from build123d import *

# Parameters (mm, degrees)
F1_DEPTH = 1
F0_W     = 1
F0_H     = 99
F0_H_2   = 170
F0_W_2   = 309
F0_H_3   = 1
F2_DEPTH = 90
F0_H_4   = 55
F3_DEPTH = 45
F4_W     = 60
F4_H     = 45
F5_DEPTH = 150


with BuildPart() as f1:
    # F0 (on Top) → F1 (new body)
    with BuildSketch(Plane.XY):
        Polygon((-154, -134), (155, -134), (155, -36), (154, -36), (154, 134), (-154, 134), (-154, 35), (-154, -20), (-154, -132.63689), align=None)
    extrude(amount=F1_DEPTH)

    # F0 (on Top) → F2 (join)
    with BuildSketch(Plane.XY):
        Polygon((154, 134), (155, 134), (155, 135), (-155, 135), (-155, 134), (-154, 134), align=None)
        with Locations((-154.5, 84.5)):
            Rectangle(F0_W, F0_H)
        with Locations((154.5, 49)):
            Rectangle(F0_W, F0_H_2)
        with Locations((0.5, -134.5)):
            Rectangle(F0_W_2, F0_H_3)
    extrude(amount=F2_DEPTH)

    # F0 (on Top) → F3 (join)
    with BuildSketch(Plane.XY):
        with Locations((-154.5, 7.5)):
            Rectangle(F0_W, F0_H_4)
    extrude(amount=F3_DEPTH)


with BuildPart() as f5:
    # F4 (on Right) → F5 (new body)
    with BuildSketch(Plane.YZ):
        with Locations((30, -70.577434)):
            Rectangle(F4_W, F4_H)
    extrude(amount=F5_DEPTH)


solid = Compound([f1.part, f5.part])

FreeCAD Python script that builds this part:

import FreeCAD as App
import Part
import Sketcher

V = App.Vector

doc = App.newDocument("Part")
body = doc.addObject("PartDesign::Body", "Body")

# Sketch on XY plane
sketch1 = body.newObject("Sketcher::SketchObject", "Sketch")
sketch1.AttachmentSupport = (doc.getObject("XY_Plane"), [""])
sketch1.MapMode = "FlatFace"
sketch1.addGeometry([
    Part.LineSegment(V(-154, -134, 0), V(155, -134, 0)),  # 0
    Part.LineSegment(V(155, -134, 0), V(155, -36, 0)),  # 1
    Part.LineSegment(V(155, -36, 0), V(154, -36, 0)),  # 2
    Part.LineSegment(V(154, -36, 0), V(154, 134, 0)),  # 3
    Part.LineSegment(V(154, 134, 0), V(-154, 134, 0)),  # 4
    Part.LineSegment(V(-154, 134, 0), V(-154, -134, 0)),  # 5
], False)
sketch1.addConstraint([
    Sketcher.Constraint("Coincident", 0, 2, 1, 1),
    Sketcher.Constraint("Coincident", 1, 2, 2, 1),
    Sketcher.Constraint("Coincident", 2, 2, 3, 1),
    Sketcher.Constraint("Coincident", 3, 2, 4, 1),
    Sketcher.Constraint("Coincident", 4, 2, 5, 1),
    Sketcher.Constraint("Coincident", 5, 2, 0, 1),
    Sketcher.Constraint("Horizontal", 0),
    Sketcher.Constraint("Vertical", 1),
    Sketcher.Constraint("Horizontal", 2),
    Sketcher.Constraint("Vertical", 3),
    Sketcher.Constraint("Horizontal", 4),
    Sketcher.Constraint("Vertical", 5),
    Sketcher.Constraint("Symmetric", 3, 2, 5, 2, -1, 1),
    Sketcher.Constraint("DistanceX", 0, 1, 0, 2, 309.0),
    Sketcher.Constraint("DistanceX", 2, 2, 2, 1, 1.0),
    Sketcher.Constraint("DistanceY", 1, 1, 1, 2, 98.0),
    Sketcher.Constraint("DistanceY", 3, 1, 3, 2, 170.0),
])
pad1 = body.newObject("PartDesign::Pad", "Pad")
pad1.Profile = sketch1
pad1.Length = 1

# Sketch on XY plane
sketch2 = body.newObject("Sketcher::SketchObject", "Sketch001")
sketch2.AttachmentSupport = (doc.getObject("XY_Plane"), [""])
sketch2.MapMode = "FlatFace"
sketch2.addGeometry([
    Part.LineSegment(V(155, 135, 0), V(-155, 135, 0)),  # 0
    Part.LineSegment(V(-155, 135, 0), V(-155, 35, 0)),  # 1
    Part.LineSegment(V(-155, 35, 0), V(-154, 35, 0)),  # 2
    Part.LineSegment(V(-154, 35, 0), V(-154, 134, 0)),  # 3
    Part.LineSegment(V(-154, 134, 0), V(154, 134, 0)),  # 4
    Part.LineSegment(V(154, 134, 0), V(154, -36, 0)),  # 5
    Part.LineSegment(V(154, -36, 0), V(155, -36, 0)),  # 6
    Part.LineSegment(V(155, -36, 0), V(155, 135, 0)),  # 7
    Part.LineSegment(V(-154, -134, 0), V(-154, -135, 0)),  # 8
    Part.LineSegment(V(-154, -135, 0), V(155, -135, 0)),  # 9
    Part.LineSegment(V(155, -135, 0), V(155, -134, 0)),  # 10
    Part.LineSegment(V(155, -134, 0), V(-154, -134, 0)),  # 11
], False)
sketch2.addConstraint([
    Sketcher.Constraint("Coincident", 0, 2, 1, 1),
    Sketcher.Constraint("Coincident", 1, 2, 2, 1),
    Sketcher.Constraint("Coincident", 2, 2, 3, 1),
    Sketcher.Constraint("Coincident", 3, 2, 4, 1),
    Sketcher.Constraint("Coincident", 4, 2, 5, 1),
    Sketcher.Constraint("Coincident", 5, 2, 6, 1),
    Sketcher.Constraint("Coincident", 6, 2, 7, 1),
    Sketcher.Constraint("Coincident", 7, 2, 0, 1),
    Sketcher.Constraint("Coincident", 8, 2, 9, 1),
    Sketcher.Constraint("Coincident", 9, 2, 10, 1),
    Sketcher.Constraint("Coincident", 10, 2, 11, 1),
    Sketcher.Constraint("Coincident", 11, 2, 8, 1),
    Sketcher.Constraint("Horizontal", 0),
    Sketcher.Constraint("Vertical", 1),
    Sketcher.Constraint("Horizontal", 2),
    Sketcher.Constraint("Vertical", 3),
    Sketcher.Constraint("Horizontal", 4),
    Sketcher.Constraint("Vertical", 5),
    Sketcher.Constraint("Horizontal", 6),
    Sketcher.Constraint("Vertical", 7),
    Sketcher.Constraint("Vertical", 8),
    Sketcher.Constraint("Horizontal", 9),
    Sketcher.Constraint("Vertical", 10),
    Sketcher.Constraint("Horizontal", 11),
    Sketcher.Constraint("Symmetric", 0, 2, 9, 2, -1, 1),
    Sketcher.Constraint("Symmetric", 4, 2, 11, 2, -1, 1),
    Sketcher.Constraint("Vertical", 3, 2, 8, 2),
    Sketcher.Constraint("Vertical", 7, 2, 9, 2),
    Sketcher.Constraint("Equal", 6, 8),
    Sketcher.Constraint("DistanceX", 0, 2, 0, 1, 310.0),
    Sketcher.Constraint("DistanceX", 2, 1, 2, 2, 1.0),
    Sketcher.Constraint("DistanceY", 1, 2, 1, 1, 100.0),
    Sketcher.Constraint("DistanceY", 5, 2, 5, 1, 170.0),
    Sketcher.Constraint("DistanceY", -1, 1, 0, 2, 135.0),
])
pad2 = body.newObject("PartDesign::Pad", "Pad001")
pad2.Profile = sketch2
pad2.Length = 90

# Sketch on XY plane
sketch3 = body.newObject("Sketcher::SketchObject", "Sketch002")
sketch3.AttachmentSupport = (doc.getObject("XY_Plane"), [""])
sketch3.MapMode = "FlatFace"
sketch3.addGeometry([
    Part.LineSegment(V(-155, 35, 0), V(-155, -20, 0)),
    Part.LineSegment(V(-155, -20, 0), V(-154, -20, 0)),
    Part.LineSegment(V(-154, -20, 0), V(-154, 35, 0)),
    Part.LineSegment(V(-154, 35, 0), V(-155, 35, 0)),
], False)
sketch3.addConstraint([
    Sketcher.Constraint("Coincident", 0, 2, 1, 1),
    Sketcher.Constraint("Coincident", 1, 2, 2, 1),
    Sketcher.Constraint("Coincident", 2, 2, 3, 1),
    Sketcher.Constraint("Coincident", 3, 2, 0, 1),
    Sketcher.Constraint("Vertical", 0),
    Sketcher.Constraint("Horizontal", 1),
    Sketcher.Constraint("Vertical", 2),
    Sketcher.Constraint("Horizontal", 3),
    Sketcher.Constraint("DistanceX", 1, 1, 1, 2, 1.0),
    Sketcher.Constraint("DistanceY", 0, 2, 0, 1, 55.0),
    Sketcher.Constraint("DistanceX", 0, 2, -1, 1, 155.0),
    Sketcher.Constraint("DistanceY", 0, 2, -1, 1, 20.0),
])
pad3 = body.newObject("PartDesign::Pad", "Pad002")
pad3.Profile = sketch3
pad3.Length = 45
body2 = doc.addObject("PartDesign::Body", "Body001")

# Sketch on YZ plane
sketch4 = body2.newObject("Sketcher::SketchObject", "Sketch003")
sketch4.AttachmentSupport = (doc.getObject("YZ_Plane001"), [""])
sketch4.MapMode = "FlatFace"
sketch4.addGeometry([
    Part.LineSegment(V(0, -48, 0), V(0, -93, 0)),
    Part.LineSegment(V(0, -93, 0), V(60, -93, 0)),
    Part.LineSegment(V(60, -93, 0), V(60, -48, 0)),
    Part.LineSegment(V(60, -48, 0), V(0, -48, 0)),
], False)
sketch4.addConstraint([
    Sketcher.Constraint("Coincident", 0, 2, 1, 1),
    Sketcher.Constraint("Coincident", 1, 2, 2, 1),
    Sketcher.Constraint("Coincident", 2, 2, 3, 1),
    Sketcher.Constraint("Coincident", 3, 2, 0, 1),
    Sketcher.Constraint("Vertical", 0),
    Sketcher.Constraint("Horizontal", 1),
    Sketcher.Constraint("Vertical", 2),
    Sketcher.Constraint("Horizontal", 3),
    Sketcher.Constraint("PointOnObject", 0, 2, -2),
    Sketcher.Constraint("DistanceX", 1, 1, 1, 2, 60.0),
    Sketcher.Constraint("DistanceY", 0, 2, 0, 1, 45.0),
    Sketcher.Constraint("DistanceY", 0, 2, -1, 1, 93.077434),
])
pad4 = body2.newObject("PartDesign::Pad", "Pad003")
pad4.Profile = sketch4
pad4.Length = 150

doc.recompute()
